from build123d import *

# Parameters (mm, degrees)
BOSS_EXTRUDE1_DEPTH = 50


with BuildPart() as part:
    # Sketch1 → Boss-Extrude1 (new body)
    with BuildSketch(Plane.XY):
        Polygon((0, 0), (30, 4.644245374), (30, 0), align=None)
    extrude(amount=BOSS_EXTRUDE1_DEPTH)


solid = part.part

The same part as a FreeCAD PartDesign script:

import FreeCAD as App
import Part
import Sketcher
from FreeCAD import Vector
Q = App.Units.Quantity

doc = App.newDocument("Part")
body = doc.addObject("PartDesign::Body", "Body")

# Sketch on XY plane
sketch1 = doc.addObject("Sketcher::SketchObject", "Sketch")
body.addObject(sketch1)
sketch1.AttachmentSupport = (doc.XY_Plane, [""])
sketch1.MapMode = "FlatFace"
sketch1.addGeometry([
    Part.LineSegment(Vector(30, 4.644245, 0), Vector(0, 0, 0)),
    Part.LineSegment(Vector(0, 0, 0), Vector(30, 0, 0)),
    Part.LineSegment(Vector(30, 0, 0), Vector(30, 4.644245, 0)),
], False)
sketch1.addConstraint([
    Sketcher.Constraint("Coincident", 0, 2, 1, 1),
    Sketcher.Constraint("Coincident", 1, 2, 2, 1),
    Sketcher.Constraint("Coincident", 2, 2, 0, 1),
    Sketcher.Constraint("Horizontal", 1),
    Sketcher.Constraint("Vertical", 2),
    Sketcher.Constraint("Coincident", 0, 2, -1, 1),
    Sketcher.Constraint("DistanceX", 1, 1, 1, 2, Q("30 mm")),
    Sketcher.Constraint("Angle", 0, Q("-171.2 deg")),
])
pad1 = doc.addObject("PartDesign::Pad", "Pad")
body.addObject(pad1)
pad1.Profile = sketch1
pad1.Length = 50

doc.recompute()
